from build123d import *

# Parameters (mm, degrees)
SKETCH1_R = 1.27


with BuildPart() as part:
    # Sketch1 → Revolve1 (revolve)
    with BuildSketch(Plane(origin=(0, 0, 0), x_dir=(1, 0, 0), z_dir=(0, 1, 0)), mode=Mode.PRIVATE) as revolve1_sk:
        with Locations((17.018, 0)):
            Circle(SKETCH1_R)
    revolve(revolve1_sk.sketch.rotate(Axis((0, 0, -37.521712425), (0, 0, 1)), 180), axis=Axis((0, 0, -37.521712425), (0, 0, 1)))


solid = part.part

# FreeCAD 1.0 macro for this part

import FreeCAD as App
import Part
import Sketcher
from FreeCAD import Vector
Q = App.Units.Quantity

doc = App.newDocument("Part")
body = doc.addObject("PartDesign::Body", "Body")

# Sketch on XZ plane
sketch1 = body.newObject("Sketcher::SketchObject", "Sketch")
sketch1.AttachmentSupport = (doc.getObject("XZ_Plane"), [""])
sketch1.MapMode = "FlatFace"
sketch1.addGeometry(Part.Circle(Vector(17, 0, 0), Vector(0, 0, 1), 1.3), False)
sketch1.addConstraint([
    Sketcher.Constraint("PointOnObject", 0, 3, -1),
    Sketcher.Constraint("Diameter", 0, Q("0.1 in")),
    Sketcher.Constraint("DistanceX", -1, 1, 0, 3, Q("0.67 in")),
])
revolution = body.newObject("PartDesign::Revolution", "Revolution")
revolution.Profile = sketch1
revolution.ReferenceAxis = (sketch1, ["V_Axis"])
revolution.Angle = 360

doc.recompute()
